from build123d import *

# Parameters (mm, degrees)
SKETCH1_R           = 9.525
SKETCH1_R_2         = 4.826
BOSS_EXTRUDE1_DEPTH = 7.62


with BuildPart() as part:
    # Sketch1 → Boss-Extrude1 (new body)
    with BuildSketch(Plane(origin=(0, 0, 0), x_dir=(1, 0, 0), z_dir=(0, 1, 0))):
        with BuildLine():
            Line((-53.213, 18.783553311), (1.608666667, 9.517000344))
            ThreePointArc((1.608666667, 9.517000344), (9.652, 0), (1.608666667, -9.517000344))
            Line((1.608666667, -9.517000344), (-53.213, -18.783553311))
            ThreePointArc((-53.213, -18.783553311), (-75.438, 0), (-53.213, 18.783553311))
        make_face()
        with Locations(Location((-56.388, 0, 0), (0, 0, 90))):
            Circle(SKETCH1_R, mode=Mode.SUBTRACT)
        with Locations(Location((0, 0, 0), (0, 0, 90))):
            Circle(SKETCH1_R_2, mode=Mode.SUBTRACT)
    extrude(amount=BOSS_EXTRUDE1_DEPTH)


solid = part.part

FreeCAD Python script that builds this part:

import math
import FreeCAD as App
import Part
import Sketcher
Q = App.Units.Quantity

doc = App.newDocument("Part")
body = doc.addObject("PartDesign::Body", "Body")

# Sketch on XZ plane
sketch1 = doc.addObject("Sketcher::SketchObject", "Sketch")
body.addObject(sketch1)
sketch1.AttachmentSupport = (doc.XZ_Plane, [""])
sketch1.MapMode = "FlatFace"
sketch1.addGeometry(Part.LineSegment(App.Vector(1.608667, -9.517, 0), App.Vector(-53.213, -18.783553, 0)), False)
sketch1.addGeometry(Part.ArcOfCircle(Part.Circle(App.Vector(-56.388, 0, 0), App.Vector(0, 0, 1), 19.05), math.radians(80.405932), math.radians(279.594068)), False)
sketch1.addGeometry(Part.LineSegment(App.Vector(-53.213, 18.783553, 0), App.Vector(1.608667, 9.517, 0)), False)
sketch1.addGeometry(Part.ArcOfCircle(Part.Circle(App.Vector(0, 0, 0), App.Vector(0, 0, 1), 9.652), math.radians(-80.405932), math.radians(80.405932)), False)
sketch1.addGeometry(Part.Circle(App.Vector(0, 0, 0), App.Vector(0, 0, 1), 4.826), False)
sketch1.addGeometry(Part.Circle(App.Vector(-56.388, 0, 0), App.Vector(0, 0, 1), 9.525), False)
sketch1.addConstraint(Sketcher.Constraint("Tangent", 0, 2, 1, 2))
sketch1.addConstraint(Sketcher.Constraint("Tangent", 1, 1, 2, 1))
sketch1.addConstraint(Sketcher.Constraint("Tangent", 2, 2, 3, 2))
sketch1.addConstraint(Sketcher.Constraint("Tangent", 3, 1, 0, 1))
sketch1.addConstraint(Sketcher.Constraint("Coincident", 3, 3, -1, 1))
sketch1.addConstraint(Sketcher.Constraint("Coincident", 4, 3, -1, 1))
sketch1.addConstraint(Sketcher.Constraint("Coincident", 5, 3, 1, 3))
sketch1.addConstraint(Sketcher.Constraint("PointOnObject", 1, 3, -1))
sketch1.addConstraint(Sketcher.Constraint("Diameter", 4, Q("0.38 in")))
sketch1.addConstraint(Sketcher.Constraint("Diameter", 5, Q("0.75 in")))
sketch1.addConstraint(Sketcher.Constraint("Radius", 1, Q("0.75 in")))
sketch1.addConstraint(Sketcher.Constraint("Radius", 3, Q("0.38 in")))
sketch1.addConstraint(Sketcher.Constraint("DistanceX", 1, 3, -1, 1, Q("2.22 in")))
pad1 = doc.addObject("PartDesign::Pad", "Pad")
body.addObject(pad1)
pad1.Profile = sketch1
pad1.Length = Q("0.3 in")
pad1.Reversed = True

doc.recompute()
